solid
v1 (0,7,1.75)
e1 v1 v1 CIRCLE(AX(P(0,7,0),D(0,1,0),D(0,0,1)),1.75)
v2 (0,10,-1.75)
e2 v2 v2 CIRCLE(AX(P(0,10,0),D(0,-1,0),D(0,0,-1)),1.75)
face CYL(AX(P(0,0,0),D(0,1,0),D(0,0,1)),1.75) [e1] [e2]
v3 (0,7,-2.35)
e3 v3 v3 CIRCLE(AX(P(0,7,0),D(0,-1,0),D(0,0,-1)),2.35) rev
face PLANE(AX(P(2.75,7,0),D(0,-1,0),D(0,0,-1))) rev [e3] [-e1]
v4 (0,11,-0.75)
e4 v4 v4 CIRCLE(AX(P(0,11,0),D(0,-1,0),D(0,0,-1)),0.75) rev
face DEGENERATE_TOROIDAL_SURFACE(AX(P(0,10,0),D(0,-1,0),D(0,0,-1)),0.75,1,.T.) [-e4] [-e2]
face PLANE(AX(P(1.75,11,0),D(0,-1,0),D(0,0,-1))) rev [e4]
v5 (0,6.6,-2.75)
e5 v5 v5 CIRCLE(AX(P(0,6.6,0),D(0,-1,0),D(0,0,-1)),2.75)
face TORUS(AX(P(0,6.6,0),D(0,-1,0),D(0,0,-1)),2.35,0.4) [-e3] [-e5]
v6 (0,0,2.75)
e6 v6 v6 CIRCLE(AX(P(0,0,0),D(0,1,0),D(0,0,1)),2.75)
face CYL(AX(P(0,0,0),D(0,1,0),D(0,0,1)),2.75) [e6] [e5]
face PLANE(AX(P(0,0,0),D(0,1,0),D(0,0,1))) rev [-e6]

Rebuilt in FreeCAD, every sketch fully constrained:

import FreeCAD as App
import Part
import Sketcher

V = App.Vector
Q = App.Units.Quantity


def edges_at(feature, points):
    """Names of the edges that pass closest to the given points."""
    edges = feature.Shape.Edges
    near = lambda p: min(range(len(edges)), key=lambda i: edges[i].distToShape(Part.Vertex(*p))[0])
    return sorted({f"Edge{near(p) + 1}" for p in points})


def add_polygon(sketch, points):
    """Adds a closed chain of lines whose ends are joined by coincident constraints."""
    first, n = sketch.GeometryCount, len(points)
    for a, b in zip(points, points[1:] + points[:1]):
        sketch.addGeometry(Part.LineSegment(App.Vector(*a, 0), App.Vector(*b, 0)), False)
    for i in range(n):
        sketch.addConstraint(Sketcher.Constraint("Coincident", first + i, 2, first + (i + 1) % n, 1))

doc = App.newDocument("Part")
body = doc.addObject("PartDesign::Body", "Body")

# Sketch on XY plane
sketch1 = body.newObject("Sketcher::SketchObject", "Sketch")
sketch1.AttachmentSupport = (doc.getObject("XY_Plane"), [""])
sketch1.MapMode = "FlatFace"
add_polygon(sketch1, [(0, 0), (2.8, 0), (2.8, 7), (1.8, 7), (1.8, 11), (0, 11)])  # lines 0-5
sketch1.addConstraint([
    Sketcher.Constraint("Horizontal", 0),
    Sketcher.Constraint("Vertical", 1),
    Sketcher.Constraint("Horizontal", 2),
    Sketcher.Constraint("Vertical", 3),
    Sketcher.Constraint("Horizontal", 4),
    Sketcher.Constraint("Vertical", 5),
    Sketcher.Constraint("Coincident", 5, 2, -1, 1),
    Sketcher.Constraint("DistanceX", 2, 2, 2, 1, Q("1 mm")),
    Sketcher.Constraint("DistanceY", 1, 1, 1, 2, Q("7 mm")),
    Sketcher.Constraint("DistanceY", 3, 1, 3, 2, Q("4 mm")),
    Sketcher.Constraint("DistanceX", 0, 1, 0, 2, Q("2.75 mm")),
])
revolution = body.newObject("PartDesign::Revolution", "Revolution")
revolution.Profile = sketch1
revolution.ReferenceAxis = (sketch1, ["V_Axis"])
revolution.Angle = 360
doc.recompute()

fillet = body.newObject("PartDesign::Fillet", "Fillet")
fillet.Base = (revolution, edges_at(revolution, [(0, 11, -1.75)]))
fillet.Radius = 1
doc.recompute()

fillet2 = body.newObject("PartDesign::Fillet", "Fillet001")
fillet2.Base = (fillet, edges_at(fillet, [(0, 7, -2.75)]))
fillet2.Radius = 0.4

doc.recompute()
